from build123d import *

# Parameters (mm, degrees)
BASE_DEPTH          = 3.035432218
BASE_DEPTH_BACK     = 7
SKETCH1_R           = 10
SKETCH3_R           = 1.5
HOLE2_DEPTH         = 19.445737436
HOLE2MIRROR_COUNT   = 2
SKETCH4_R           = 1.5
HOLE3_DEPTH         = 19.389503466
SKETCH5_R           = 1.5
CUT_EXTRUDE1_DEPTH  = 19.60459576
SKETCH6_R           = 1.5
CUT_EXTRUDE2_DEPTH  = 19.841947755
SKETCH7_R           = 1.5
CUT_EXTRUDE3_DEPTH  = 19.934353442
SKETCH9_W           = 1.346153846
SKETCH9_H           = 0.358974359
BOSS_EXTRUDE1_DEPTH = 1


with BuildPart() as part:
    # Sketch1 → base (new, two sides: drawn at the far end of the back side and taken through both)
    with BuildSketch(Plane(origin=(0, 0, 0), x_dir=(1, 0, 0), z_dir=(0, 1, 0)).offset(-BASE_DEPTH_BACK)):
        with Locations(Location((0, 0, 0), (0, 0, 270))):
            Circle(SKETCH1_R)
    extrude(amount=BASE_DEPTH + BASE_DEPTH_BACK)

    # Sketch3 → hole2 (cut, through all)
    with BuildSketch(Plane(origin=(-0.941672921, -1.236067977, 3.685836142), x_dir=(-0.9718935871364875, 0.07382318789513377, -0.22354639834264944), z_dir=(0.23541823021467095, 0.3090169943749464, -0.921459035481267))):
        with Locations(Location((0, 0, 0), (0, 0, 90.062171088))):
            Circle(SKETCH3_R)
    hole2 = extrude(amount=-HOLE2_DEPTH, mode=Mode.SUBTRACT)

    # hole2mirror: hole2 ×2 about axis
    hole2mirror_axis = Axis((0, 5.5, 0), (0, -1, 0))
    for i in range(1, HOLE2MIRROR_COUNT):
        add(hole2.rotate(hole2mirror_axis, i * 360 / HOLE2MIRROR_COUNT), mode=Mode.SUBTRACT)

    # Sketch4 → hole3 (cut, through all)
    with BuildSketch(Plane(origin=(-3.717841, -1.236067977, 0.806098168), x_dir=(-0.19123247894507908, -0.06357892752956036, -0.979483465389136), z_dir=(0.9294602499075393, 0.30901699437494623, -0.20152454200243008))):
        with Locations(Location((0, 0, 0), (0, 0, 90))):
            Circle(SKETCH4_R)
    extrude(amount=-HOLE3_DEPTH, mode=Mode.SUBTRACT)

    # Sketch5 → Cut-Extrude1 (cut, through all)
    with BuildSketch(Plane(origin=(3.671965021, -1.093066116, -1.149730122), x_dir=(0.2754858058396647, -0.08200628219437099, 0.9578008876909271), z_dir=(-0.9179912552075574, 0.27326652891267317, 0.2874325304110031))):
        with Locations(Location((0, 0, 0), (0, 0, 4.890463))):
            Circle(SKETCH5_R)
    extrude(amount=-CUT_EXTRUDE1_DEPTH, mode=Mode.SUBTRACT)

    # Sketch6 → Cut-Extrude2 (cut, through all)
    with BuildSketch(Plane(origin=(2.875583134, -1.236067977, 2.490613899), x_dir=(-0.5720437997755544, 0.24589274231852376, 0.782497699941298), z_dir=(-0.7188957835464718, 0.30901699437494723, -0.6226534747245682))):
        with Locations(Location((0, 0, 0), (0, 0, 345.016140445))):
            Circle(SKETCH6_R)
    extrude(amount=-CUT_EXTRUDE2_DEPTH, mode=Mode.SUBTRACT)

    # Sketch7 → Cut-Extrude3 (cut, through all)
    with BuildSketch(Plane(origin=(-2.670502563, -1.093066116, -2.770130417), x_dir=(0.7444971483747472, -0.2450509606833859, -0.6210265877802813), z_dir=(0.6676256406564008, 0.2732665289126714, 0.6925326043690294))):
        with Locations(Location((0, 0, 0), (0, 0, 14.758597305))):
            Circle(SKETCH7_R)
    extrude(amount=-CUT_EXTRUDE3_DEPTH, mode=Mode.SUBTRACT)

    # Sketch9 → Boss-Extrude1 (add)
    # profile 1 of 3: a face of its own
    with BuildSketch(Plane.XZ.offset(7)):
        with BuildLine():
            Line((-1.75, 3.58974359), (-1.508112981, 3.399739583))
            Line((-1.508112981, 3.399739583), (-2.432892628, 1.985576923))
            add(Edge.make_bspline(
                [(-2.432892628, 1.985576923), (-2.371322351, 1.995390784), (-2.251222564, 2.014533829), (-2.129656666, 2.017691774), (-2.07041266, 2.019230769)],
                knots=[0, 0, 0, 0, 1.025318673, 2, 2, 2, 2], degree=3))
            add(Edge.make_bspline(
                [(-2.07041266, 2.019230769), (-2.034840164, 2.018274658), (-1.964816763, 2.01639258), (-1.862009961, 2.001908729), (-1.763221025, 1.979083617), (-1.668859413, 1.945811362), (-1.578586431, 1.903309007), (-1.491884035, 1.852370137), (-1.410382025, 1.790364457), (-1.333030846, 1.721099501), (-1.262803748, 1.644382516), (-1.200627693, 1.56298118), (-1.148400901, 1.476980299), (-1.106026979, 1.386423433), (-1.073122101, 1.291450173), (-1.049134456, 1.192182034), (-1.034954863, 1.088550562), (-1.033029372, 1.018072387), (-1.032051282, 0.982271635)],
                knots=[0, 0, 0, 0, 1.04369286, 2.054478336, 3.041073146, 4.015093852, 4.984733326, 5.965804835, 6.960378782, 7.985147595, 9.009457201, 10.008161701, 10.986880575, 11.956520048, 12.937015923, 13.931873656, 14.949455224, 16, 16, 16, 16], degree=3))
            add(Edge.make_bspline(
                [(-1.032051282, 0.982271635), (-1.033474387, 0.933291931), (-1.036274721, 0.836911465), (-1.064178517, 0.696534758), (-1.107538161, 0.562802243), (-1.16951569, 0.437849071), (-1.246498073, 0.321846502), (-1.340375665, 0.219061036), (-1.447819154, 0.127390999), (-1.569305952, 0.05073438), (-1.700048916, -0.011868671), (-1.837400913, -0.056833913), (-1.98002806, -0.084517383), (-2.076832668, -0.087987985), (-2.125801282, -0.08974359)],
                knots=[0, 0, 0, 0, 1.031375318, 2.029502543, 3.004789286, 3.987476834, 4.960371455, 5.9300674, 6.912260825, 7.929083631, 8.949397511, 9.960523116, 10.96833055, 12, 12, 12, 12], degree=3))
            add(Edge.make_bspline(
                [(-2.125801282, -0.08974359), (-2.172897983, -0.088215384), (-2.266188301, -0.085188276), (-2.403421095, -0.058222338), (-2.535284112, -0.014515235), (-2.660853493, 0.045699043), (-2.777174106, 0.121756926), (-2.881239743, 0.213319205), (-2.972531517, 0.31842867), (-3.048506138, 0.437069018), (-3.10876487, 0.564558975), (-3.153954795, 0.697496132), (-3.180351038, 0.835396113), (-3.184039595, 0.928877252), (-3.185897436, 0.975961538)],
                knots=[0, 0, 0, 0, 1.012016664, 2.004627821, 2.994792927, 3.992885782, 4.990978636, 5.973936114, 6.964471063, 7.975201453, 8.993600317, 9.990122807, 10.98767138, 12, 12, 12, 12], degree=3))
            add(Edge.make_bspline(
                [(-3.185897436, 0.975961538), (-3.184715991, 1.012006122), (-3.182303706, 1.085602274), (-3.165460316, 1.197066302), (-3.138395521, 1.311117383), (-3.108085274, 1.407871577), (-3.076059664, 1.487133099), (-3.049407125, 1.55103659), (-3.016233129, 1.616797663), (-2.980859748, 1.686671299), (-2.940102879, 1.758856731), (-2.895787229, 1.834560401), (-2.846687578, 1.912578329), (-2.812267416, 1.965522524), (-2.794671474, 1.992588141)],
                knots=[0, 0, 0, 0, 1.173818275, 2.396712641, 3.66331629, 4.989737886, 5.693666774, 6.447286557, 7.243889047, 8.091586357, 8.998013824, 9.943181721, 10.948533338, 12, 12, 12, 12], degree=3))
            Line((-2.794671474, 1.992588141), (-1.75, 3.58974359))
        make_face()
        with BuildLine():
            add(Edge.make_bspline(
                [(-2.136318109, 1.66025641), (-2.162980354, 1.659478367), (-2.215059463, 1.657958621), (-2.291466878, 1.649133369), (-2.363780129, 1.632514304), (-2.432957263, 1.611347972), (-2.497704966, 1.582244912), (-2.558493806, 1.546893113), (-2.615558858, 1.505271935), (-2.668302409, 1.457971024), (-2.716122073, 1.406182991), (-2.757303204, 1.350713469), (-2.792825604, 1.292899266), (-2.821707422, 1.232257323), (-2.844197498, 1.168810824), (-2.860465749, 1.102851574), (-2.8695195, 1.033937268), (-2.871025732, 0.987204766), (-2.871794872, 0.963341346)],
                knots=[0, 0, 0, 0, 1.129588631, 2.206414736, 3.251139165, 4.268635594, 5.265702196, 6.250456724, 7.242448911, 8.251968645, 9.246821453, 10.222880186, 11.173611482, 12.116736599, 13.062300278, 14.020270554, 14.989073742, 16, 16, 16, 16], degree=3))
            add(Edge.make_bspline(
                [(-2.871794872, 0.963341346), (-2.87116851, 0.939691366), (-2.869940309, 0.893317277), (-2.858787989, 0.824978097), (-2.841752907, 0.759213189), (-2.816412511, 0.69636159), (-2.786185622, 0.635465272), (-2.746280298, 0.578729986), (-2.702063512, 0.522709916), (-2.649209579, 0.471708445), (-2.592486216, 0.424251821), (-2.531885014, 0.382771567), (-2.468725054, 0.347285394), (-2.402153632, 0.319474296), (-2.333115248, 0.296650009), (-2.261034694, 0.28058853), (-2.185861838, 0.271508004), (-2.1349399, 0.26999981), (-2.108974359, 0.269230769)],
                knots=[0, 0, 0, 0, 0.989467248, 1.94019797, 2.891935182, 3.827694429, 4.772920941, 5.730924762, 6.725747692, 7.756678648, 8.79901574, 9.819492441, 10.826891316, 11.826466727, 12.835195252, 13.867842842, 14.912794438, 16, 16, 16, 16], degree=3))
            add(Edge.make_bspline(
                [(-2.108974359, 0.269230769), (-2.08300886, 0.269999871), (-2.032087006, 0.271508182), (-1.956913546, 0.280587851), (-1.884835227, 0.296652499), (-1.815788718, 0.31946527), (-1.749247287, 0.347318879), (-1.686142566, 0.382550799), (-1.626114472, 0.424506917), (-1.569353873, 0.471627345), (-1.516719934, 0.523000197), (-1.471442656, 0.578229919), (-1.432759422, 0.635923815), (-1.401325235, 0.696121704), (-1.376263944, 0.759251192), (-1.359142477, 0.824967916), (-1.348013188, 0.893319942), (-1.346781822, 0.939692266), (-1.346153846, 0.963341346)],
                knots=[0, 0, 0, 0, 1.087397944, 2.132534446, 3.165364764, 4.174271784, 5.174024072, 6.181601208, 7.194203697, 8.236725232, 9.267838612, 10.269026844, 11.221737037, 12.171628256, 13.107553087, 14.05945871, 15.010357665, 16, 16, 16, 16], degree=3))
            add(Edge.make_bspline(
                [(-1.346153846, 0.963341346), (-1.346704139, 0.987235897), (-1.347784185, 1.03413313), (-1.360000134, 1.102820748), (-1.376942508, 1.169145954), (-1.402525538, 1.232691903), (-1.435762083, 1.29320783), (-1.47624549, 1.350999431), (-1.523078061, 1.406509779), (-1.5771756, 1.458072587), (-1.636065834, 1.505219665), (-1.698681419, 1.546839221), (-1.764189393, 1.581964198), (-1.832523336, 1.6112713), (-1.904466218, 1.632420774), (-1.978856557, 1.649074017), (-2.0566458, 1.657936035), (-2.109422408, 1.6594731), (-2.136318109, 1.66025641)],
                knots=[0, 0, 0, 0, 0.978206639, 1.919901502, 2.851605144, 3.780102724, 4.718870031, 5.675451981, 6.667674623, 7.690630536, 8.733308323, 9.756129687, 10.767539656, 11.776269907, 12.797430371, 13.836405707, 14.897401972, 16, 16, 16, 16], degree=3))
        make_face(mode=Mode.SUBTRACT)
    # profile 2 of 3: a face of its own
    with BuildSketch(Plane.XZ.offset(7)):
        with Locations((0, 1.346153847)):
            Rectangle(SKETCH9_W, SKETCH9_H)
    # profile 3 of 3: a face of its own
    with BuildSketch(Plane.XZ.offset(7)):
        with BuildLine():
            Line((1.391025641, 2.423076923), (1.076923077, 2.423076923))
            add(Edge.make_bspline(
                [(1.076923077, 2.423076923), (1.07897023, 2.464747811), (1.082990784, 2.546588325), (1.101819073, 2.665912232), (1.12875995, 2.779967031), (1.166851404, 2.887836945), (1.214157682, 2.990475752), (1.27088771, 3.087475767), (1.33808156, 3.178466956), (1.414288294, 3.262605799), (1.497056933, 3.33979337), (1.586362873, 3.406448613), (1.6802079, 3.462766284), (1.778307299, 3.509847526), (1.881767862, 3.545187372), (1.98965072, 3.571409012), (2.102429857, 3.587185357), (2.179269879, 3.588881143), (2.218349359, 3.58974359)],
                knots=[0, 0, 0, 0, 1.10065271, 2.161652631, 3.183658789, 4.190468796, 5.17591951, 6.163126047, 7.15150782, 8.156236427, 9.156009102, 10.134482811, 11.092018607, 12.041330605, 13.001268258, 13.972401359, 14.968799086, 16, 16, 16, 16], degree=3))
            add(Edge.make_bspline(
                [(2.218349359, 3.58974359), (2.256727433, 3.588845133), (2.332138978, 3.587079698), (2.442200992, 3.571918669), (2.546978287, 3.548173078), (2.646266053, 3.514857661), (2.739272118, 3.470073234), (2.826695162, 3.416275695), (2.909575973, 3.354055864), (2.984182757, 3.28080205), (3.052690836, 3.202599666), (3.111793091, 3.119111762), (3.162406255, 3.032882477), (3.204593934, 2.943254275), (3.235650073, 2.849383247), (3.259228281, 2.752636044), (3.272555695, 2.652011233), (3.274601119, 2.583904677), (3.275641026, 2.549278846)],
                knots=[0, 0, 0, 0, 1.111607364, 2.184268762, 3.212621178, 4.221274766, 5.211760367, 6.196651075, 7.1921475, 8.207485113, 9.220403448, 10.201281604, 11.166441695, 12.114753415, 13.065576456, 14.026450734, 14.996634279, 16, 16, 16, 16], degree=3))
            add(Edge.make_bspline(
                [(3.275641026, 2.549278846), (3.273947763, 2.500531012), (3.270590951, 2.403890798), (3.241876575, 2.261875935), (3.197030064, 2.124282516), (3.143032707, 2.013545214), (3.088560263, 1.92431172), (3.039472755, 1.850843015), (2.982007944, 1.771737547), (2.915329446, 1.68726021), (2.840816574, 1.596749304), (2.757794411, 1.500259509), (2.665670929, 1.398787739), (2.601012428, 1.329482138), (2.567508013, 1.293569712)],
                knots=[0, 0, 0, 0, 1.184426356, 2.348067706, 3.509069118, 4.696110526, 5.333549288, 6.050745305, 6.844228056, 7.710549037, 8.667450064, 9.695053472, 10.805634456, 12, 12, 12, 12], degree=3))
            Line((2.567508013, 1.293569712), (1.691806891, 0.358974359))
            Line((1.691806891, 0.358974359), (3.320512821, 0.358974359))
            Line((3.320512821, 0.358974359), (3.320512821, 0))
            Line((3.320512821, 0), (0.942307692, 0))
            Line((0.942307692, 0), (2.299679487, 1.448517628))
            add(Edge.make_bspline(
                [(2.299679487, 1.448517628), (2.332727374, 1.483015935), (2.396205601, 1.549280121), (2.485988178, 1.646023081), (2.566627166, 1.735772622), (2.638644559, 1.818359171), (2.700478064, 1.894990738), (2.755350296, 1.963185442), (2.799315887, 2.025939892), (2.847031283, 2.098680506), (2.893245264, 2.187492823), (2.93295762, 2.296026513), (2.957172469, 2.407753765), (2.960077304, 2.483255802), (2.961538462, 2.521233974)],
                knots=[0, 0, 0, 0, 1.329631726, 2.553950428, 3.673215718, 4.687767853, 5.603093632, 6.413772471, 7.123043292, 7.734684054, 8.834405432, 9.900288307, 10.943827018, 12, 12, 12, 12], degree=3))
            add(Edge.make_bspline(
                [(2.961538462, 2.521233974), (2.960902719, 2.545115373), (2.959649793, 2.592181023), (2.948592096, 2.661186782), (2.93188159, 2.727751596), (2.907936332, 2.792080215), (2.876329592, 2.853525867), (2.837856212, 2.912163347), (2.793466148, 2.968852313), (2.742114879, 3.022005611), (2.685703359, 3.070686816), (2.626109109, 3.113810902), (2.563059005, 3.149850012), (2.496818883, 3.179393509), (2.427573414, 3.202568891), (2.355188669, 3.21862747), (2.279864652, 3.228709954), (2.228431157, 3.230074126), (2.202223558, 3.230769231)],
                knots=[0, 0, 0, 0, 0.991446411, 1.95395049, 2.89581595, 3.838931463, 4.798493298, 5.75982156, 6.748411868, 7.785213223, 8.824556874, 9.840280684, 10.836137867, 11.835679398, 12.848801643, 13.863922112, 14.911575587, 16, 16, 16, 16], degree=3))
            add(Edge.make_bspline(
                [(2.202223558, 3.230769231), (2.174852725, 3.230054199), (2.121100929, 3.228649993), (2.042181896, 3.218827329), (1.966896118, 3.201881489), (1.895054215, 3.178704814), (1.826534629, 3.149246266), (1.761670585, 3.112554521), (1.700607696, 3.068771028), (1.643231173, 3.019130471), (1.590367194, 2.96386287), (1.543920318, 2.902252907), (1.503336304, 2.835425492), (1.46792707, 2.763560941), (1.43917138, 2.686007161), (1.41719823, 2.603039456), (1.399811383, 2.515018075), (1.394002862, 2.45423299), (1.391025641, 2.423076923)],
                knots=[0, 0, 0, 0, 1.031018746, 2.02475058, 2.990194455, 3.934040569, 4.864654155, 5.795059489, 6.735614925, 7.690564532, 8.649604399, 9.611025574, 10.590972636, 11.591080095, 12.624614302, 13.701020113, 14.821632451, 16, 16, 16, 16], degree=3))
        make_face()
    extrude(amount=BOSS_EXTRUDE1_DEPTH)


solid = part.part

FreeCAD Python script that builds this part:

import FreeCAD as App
import Part
import Sketcher
from FreeCAD import Vector
Q = App.Units.Quantity

doc = App.newDocument("Part")
body = doc.addObject("PartDesign::Body", "Body")

# Sketch on XZ plane
sketch1 = body.newObject("Sketcher::SketchObject", "Sketch")
sketch1.AttachmentSupport = (doc.getObject("XZ_Plane"), [""])
sketch1.MapMode = "FlatFace"
sketch1.addGeometry(Part.Circle(Vector(0, 0, 0), Vector(0, 0, 1), 10), False)
sketch1.addConstraint([
    Sketcher.Constraint("Coincident", 0, 3, -1, 1),
    Sketcher.Constraint("Diameter", 0, Q("20 mm")),
])
pad1 = body.newObject("PartDesign::Pad", "Pad")
pad1.Profile = sketch1
pad1.Type = "TwoLengths"
pad1.Length = 3.035432
pad1.Length2 = 7
pad1.Reversed = True

# Sketch on an angled plane
sketch2 = body.newObject("Sketcher::SketchObject", "Sketch001")
sketch2.Placement = App.Placement(Vector(-0.941673, -1.236068, 3.685836), App.Rotation(Vector(-0.971893587, 0.073823188, -0.223546398), Vector(-0.001054592, 0.948187024, 0.317710959), Vector(0.23541823, 0.309016994, -0.921459035), "ZXY"))
sketch2.addGeometry(Part.Circle(Vector(0, 0, 0), Vector(0, 0, 1), 1.5), False)
sketch2.addConstraint([
    Sketcher.Constraint("Coincident", 0, 3, -1, 1),
    Sketcher.Constraint("Diameter", 0, Q("3 mm")),
])
pocket1 = body.newObject("PartDesign::Pocket", "Pocket")
pocket1.Profile = sketch2
pocket1.Type = "ThroughAll"
doc.recompute()

polarpattern = body.newObject("PartDesign::PolarPattern", "PolarPattern")
polarpattern.Originals = [pocket1]
polarpattern.Axis = (doc.getObject("Y_Axis"), [""])
polarpattern.Angle = 360
polarpattern.Occurrences = 2
body.Tip = polarpattern

# Sketch on an angled plane
sketch3 = body.newObject("Sketcher::SketchObject", "Sketch002")
sketch3.Placement = App.Placement(Vector(-3.717841, -1.236068, 0.806098), App.Rotation(Vector(-0.191232479, -0.063578928, -0.979483465), Vector(-0.31548975, 0.948928984, 0), Vector(0.92946025, 0.309016994, -0.201524542), "ZXY"))
sketch3.addGeometry(Part.Circle(Vector(0, 0, 0), Vector(0, 0, 1), 1.5), False)
sketch3.addConstraint([
    Sketcher.Constraint("Coincident", 0, 3, -1, 1),
    Sketcher.Constraint("Diameter", 0, Q("3 mm")),
])
pocket2 = body.newObject("PartDesign::Pocket", "Pocket001")
pocket2.Profile = sketch3
pocket2.Type = "ThroughAll"

# Sketch on an angled plane
sketch4 = body.newObject("Sketcher::SketchObject", "Sketch003")
sketch4.Placement = App.Placement(Vector(3.671965, -1.093066, -1.14973), App.Rotation(Vector(0.275485806, -0.082006282, 0.957800888), Vector(0.285306197, 0.958436421, 0), Vector(-0.917991255, 0.273266529, 0.28743253), "ZXY"))
sketch4.addGeometry(Part.Circle(Vector(0, 0, 0), Vector(0, 0, 1), 1.5), False)
sketch4.addConstraint([
    Sketcher.Constraint("Coincident", 0, 3, -1, 1),
    Sketcher.Constraint("Diameter", 0, Q("3 mm")),
])
pocket3 = body.newObject("PartDesign::Pocket", "Pocket002")
pocket3.Profile = sketch4
pocket3.Type = "ThroughAll"

# Sketch on an angled plane
sketch5 = body.newObject("Sketcher::SketchObject", "Sketch004")
sketch5.Placement = App.Placement(Vector(2.875583, -1.236068, 2.490614), App.Rotation(Vector(-0.5720438, 0.245892742, 0.7824977), Vector(0.394911057, 0.918719357, 0), Vector(-0.718895784, 0.309016994, -0.622653475), "ZXY"))
sketch5.addGeometry(Part.Circle(Vector(0, 0, 0), Vector(0, 0, 1), 1.5), False)
sketch5.addConstraint([
    Sketcher.Constraint("Coincident", 0, 3, -1, 1),
    Sketcher.Constraint("Diameter", 0, Q("3 mm")),
])
pocket4 = body.newObject("PartDesign::Pocket", "Pocket003")
pocket4.Profile = sketch5
pocket4.Type = "ThroughAll"

# Sketch on an angled plane
sketch6 = body.newObject("Sketcher::SketchObject", "Sketch005")
sketch6.Placement = App.Placement(Vector(-2.670503, -1.093066, -2.77013), App.Rotation(Vector(0.744497148, -0.245050961, -0.621026588), Vector(0, 0.930201822, -0.367048456), Vector(0.667625641, 0.273266529, 0.692532604), "ZXY"))
sketch6.addGeometry(Part.Circle(Vector(0, 0, 0), Vector(0, 0, 1), 1.5), False)
sketch6.addConstraint([
    Sketcher.Constraint("Coincident", 0, 3, -1, 1),
    Sketcher.Constraint("Diameter", 0, Q("3 mm")),
])
pocket5 = body.newObject("PartDesign::Pocket", "Pocket004")
pocket5.Profile = sketch6
pocket5.Type = "ThroughAll"

# Sketch on XZ plane
sketch7 = body.newObject("Sketcher::SketchObject", "Sketch006")
sketch7.AttachmentSupport = (doc.getObject("XZ_Plane"), [""])
sketch7.MapMode = "FlatFace"
sketch7.AttachmentOffset = App.Placement(Vector(0, 0, 7), App.Rotation())
sketch7.addGeometry([
    Part.LineSegment(Vector(-1.508113, 3.39974, 0), Vector(-1.75, 3.589744, 0)),  # 0
    Part.LineSegment(Vector(-1.75, 3.589744, 0), Vector(-2.794671, 1.992588, 0)),  # 1
    Part.BSplineCurve([Vector(-3.185897, 0.975962, 0), Vector(-3.184716, 1.012006, 0), Vector(-3.182304, 1.085602, 0), Vector(-3.16546, 1.197066, 0), Vector(-3.138396, 1.311117, 0), Vector(-3.108085, 1.407872, 0), Vector(-3.07606, 1.487133, 0), Vector(-3.049407, 1.551037, 0), Vector(-3.016233, 1.616798, 0), Vector(-2.98086, 1.686671, 0), Vector(-2.940103, 1.758857, 0), Vector(-2.895787, 1.83456, 0), Vector(-2.846688, 1.912578, 0), Vector(-2.812267, 1.965523, 0), Vector(-2.794671, 1.992588, 0)], [4, 1, 1, 1, 1, 1, 1, 1, 1, 1, 1, 1, 4], [0, 1.173818275, 2.396712641, 3.66331629, 4.989737886, 5.693666774, 6.447286557, 7.243889047, 8.091586357, 8.998013824, 9.943181721, 10.948533338, 12], False, 3, [1, 1, 1, 1, 1, 1, 1, 1, 1, 1, 1, 1, 1, 1, 1], False),  # 2
    Part.BSplineCurve([Vector(-2.125801, -0.089744, 0), Vector(-2.172898, -0.088215, 0), Vector(-2.266188, -0.085188, 0), Vector(-2.403421, -0.058222, 0), Vector(-2.535284, -0.014515, 0), Vector(-2.660853, 0.045699, 0), Vector(-2.777174, 0.121757, 0), Vector(-2.88124, 0.213319, 0), Vector(-2.972532, 0.318429, 0), Vector(-3.048506, 0.437069, 0), Vector(-3.108765, 0.564559, 0), Vector(-3.153955, 0.697496, 0), Vector(-3.180351, 0.835396, 0), Vector(-3.18404, 0.928877, 0), Vector(-3.185897, 0.975962, 0)], [4, 1, 1, 1, 1, 1, 1, 1, 1, 1, 1, 1, 4], [0, 1.012016664, 2.004627821, 2.994792927, 3.992885782, 4.990978636, 5.973936114, 6.964471063, 7.975201453, 8.993600317, 9.990122807, 10.98767138, 12], False, 3, [1, 1, 1, 1, 1, 1, 1, 1, 1, 1, 1, 1, 1, 1, 1], False),  # 3
    Part.BSplineCurve([Vector(-1.032051, 0.982272, 0), Vector(-1.033474, 0.933292, 0), Vector(-1.036275, 0.836911, 0), Vector(-1.064179, 0.696535, 0), Vector(-1.107538, 0.562802, 0), Vector(-1.169516, 0.437849, 0), Vector(-1.246498, 0.321847, 0), Vector(-1.340376, 0.219061, 0), Vector(-1.447819, 0.127391, 0), Vector(-1.569306, 0.050734, 0), Vector(-1.700049, -0.011869, 0), Vector(-1.837401, -0.056834, 0), Vector(-1.980028, -0.084517, 0), Vector(-2.076833, -0.087988, 0), Vector(-2.125801, -0.089744, 0)], [4, 1, 1, 1, 1, 1, 1, 1, 1, 1, 1, 1, 4], [0, 1.031375318, 2.029502543, 3.004789286, 3.987476834, 4.960371455, 5.9300674, 6.912260825, 7.929083631, 8.949397511, 9.960523116, 10.96833055, 12], False, 3, [1, 1, 1, 1, 1, 1, 1, 1, 1, 1, 1, 1, 1, 1, 1], False),  # 4
    Part.BSplineCurve([Vector(-2.070413, 2.019231, 0), Vector(-2.03484, 2.018275, 0), Vector(-1.964817, 2.016393, 0), Vector(-1.86201, 2.001909, 0), Vector(-1.763221, 1.979084, 0), Vector(-1.668859, 1.945811, 0), Vector(-1.578586, 1.903309, 0), Vector(-1.491884, 1.85237, 0), Vector(-1.410382, 1.790364, 0), Vector(-1.333031, 1.7211, 0), Vector(-1.262804, 1.644383, 0), Vector(-1.200628, 1.562981, 0), Vector(-1.148401, 1.47698, 0), Vector(-1.106027, 1.386423, 0), Vector(-1.073122, 1.29145, 0), Vector(-1.049134, 1.192182, 0), Vector(-1.034955, 1.088551, 0), Vector(-1.033029, 1.018072, 0), Vector(-1.032051, 0.982272, 0)], [4, 1, 1, 1, 1, 1, 1, 1, 1, 1, 1, 1, 1, 1, 1, 1, 4], [0, 1.04369286, 2.054478336, 3.041073146, 4.015093852, 4.984733326, 5.965804835, 6.960378782, 7.985147595, 9.009457201, 10.008161701, 10.986880575, 11.956520048, 12.937015923, 13.931873656, 14.949455224, 16], False, 3, [1, 1, 1, 1, 1, 1, 1, 1, 1, 1, 1, 1, 1, 1, 1, 1, 1, 1, 1], False),  # 5
    Part.BSplineCurve([Vector(-2.432893, 1.985577, 0), Vector(-2.371322, 1.995391, 0), Vector(-2.251223, 2.014534, 0), Vector(-2.129657, 2.017692, 0), Vector(-2.070413, 2.019231, 0)], [4, 1, 4], [0, 1.025318673, 2], False, 3, [1, 1, 1, 1, 1], False),  # 6
    Part.LineSegment(Vector(-2.432893, 1.985577, 0), Vector(-1.508113, 3.39974, 0)),  # 7
    Part.BSplineCurve([Vector(-1.346154, 0.963341, 0), Vector(-1.346704, 0.987236, 0), Vector(-1.347784, 1.034133, 0), Vector(-1.36, 1.102821, 0), Vector(-1.376943, 1.169146, 0), Vector(-1.402526, 1.232692, 0), Vector(-1.435762, 1.293208, 0), Vector(-1.476245, 1.350999, 0), Vector(-1.523078, 1.40651, 0), Vector(-1.577176, 1.458073, 0), Vector(-1.636066, 1.50522, 0), Vector(-1.698681, 1.546839, 0), Vector(-1.764189, 1.581964, 0), Vector(-1.832523, 1.611271, 0), Vector(-1.904466, 1.632421, 0), Vector(-1.978857, 1.649074, 0), Vector(-2.056646, 1.657936, 0), Vector(-2.109422, 1.659473, 0), Vector(-2.136318, 1.660256, 0)], [4, 1, 1, 1, 1, 1, 1, 1, 1, 1, 1, 1, 1, 1, 1, 1, 4], [0, 0.978206639, 1.919901502, 2.851605144, 3.780102724, 4.718870031, 5.675451981, 6.667674623, 7.690630536, 8.733308323, 9.756129687, 10.767539656, 11.776269907, 12.797430371, 13.836405707, 14.897401972, 16], False, 3, [1, 1, 1, 1, 1, 1, 1, 1, 1, 1, 1, 1, 1, 1, 1, 1, 1, 1, 1], False),  # 8
    Part.BSplineCurve([Vector(-2.108974, 0.269231, 0), Vector(-2.083009, 0.27, 0), Vector(-2.032087, 0.271508, 0), Vector(-1.956914, 0.280588, 0), Vector(-1.884835, 0.296652, 0), Vector(-1.815789, 0.319465, 0), Vector(-1.749247, 0.347319, 0), Vector(-1.686143, 0.382551, 0), Vector(-1.626114, 0.424507, 0), Vector(-1.569354, 0.471627, 0), Vector(-1.51672, 0.523, 0), Vector(-1.471443, 0.57823, 0), Vector(-1.432759, 0.635924, 0), Vector(-1.401325, 0.696122, 0), Vector(-1.376264, 0.759251, 0), Vector(-1.359142, 0.824968, 0), Vector(-1.348013, 0.89332, 0), Vector(-1.346782, 0.939692, 0), Vector(-1.346154, 0.963341, 0)], [4, 1, 1, 1, 1, 1, 1, 1, 1, 1, 1, 1, 1, 1, 1, 1, 4], [0, 1.087397944, 2.132534446, 3.165364764, 4.174271784, 5.174024072, 6.181601208, 7.194203697, 8.236725232, 9.267838612, 10.269026844, 11.221737037, 12.171628256, 13.107553087, 14.05945871, 15.010357665, 16], False, 3, [1, 1, 1, 1, 1, 1, 1, 1, 1, 1, 1, 1, 1, 1, 1, 1, 1, 1, 1], False),  # 9
    Part.BSplineCurve([Vector(-2.871795, 0.963341, 0), Vector(-2.871169, 0.939691, 0), Vector(-2.86994, 0.893317, 0), Vector(-2.858788, 0.824978, 0), Vector(-2.841753, 0.759213, 0), Vector(-2.816413, 0.696362, 0), Vector(-2.786186, 0.635465, 0), Vector(-2.74628, 0.57873, 0), Vector(-2.702064, 0.52271, 0), Vector(-2.64921, 0.471708, 0), Vector(-2.592486, 0.424252, 0), Vector(-2.531885, 0.382772, 0), Vector(-2.468725, 0.347285, 0), Vector(-2.402154, 0.319474, 0), Vector(-2.333115, 0.29665, 0), Vector(-2.261035, 0.280589, 0), Vector(-2.185862, 0.271508, 0), Vector(-2.13494, 0.27, 0), Vector(-2.108974, 0.269231, 0)], [4, 1, 1, 1, 1, 1, 1, 1, 1, 1, 1, 1, 1, 1, 1, 1, 4], [0, 0.989467248, 1.94019797, 2.891935182, 3.827694429, 4.772920941, 5.730924762, 6.725747692, 7.756678648, 8.79901574, 9.819492441, 10.826891316, 11.826466727, 12.835195252, 13.867842842, 14.912794438, 16], False, 3, [1, 1, 1, 1, 1, 1, 1, 1, 1, 1, 1, 1, 1, 1, 1, 1, 1, 1, 1], False),  # 10
    Part.BSplineCurve([Vector(-2.136318, 1.660256, 0), Vector(-2.16298, 1.659478, 0), Vector(-2.215059, 1.657959, 0), Vector(-2.291467, 1.649133, 0), Vector(-2.36378, 1.632514, 0), Vector(-2.432957, 1.611348, 0), Vector(-2.497705, 1.582245, 0), Vector(-2.558494, 1.546893, 0), Vector(-2.615559, 1.505272, 0), Vector(-2.668302, 1.457971, 0), Vector(-2.716122, 1.406183, 0), Vector(-2.757303, 1.350713, 0), Vector(-2.792826, 1.292899, 0), Vector(-2.821707, 1.232257, 0), Vector(-2.844197, 1.168811, 0), Vector(-2.860466, 1.102852, 0), Vector(-2.86952, 1.033937, 0), Vector(-2.871026, 0.987205, 0), Vector(-2.871795, 0.963341, 0)], [4, 1, 1, 1, 1, 1, 1, 1, 1, 1, 1, 1, 1, 1, 1, 1, 4], [0, 1.129588631, 2.206414736, 3.251139165, 4.268635594, 5.265702196, 6.250456724, 7.242448911, 8.251968645, 9.246821453, 10.222880186, 11.173611482, 12.116736599, 13.062300278, 14.020270554, 14.989073742, 16], False, 3, [1, 1, 1, 1, 1, 1, 1, 1, 1, 1, 1, 1, 1, 1, 1, 1, 1, 1, 1], False),  # 11
    Part.LineSegment(Vector(-0.673077, 1.525641, 0), Vector(-0.673077, 1.166667, 0)),  # 12
    Part.LineSegment(Vector(-0.673077, 1.166667, 0), Vector(0.673077, 1.166667, 0)),  # 13
    Part.LineSegment(Vector(0.673077, 1.166667, 0), Vector(0.673077, 1.525641, 0)),  # 14
    Part.LineSegment(Vector(0.673077, 1.525641, 0), Vector(-0.673077, 1.525641, 0)),  # 15
    Part.LineSegment(Vector(1.076923, 2.423077, 0), Vector(1.391026, 2.423077, 0)),  # 16
    Part.BSplineCurve([Vector(2.202224, 3.230769, 0), Vector(2.174853, 3.230054, 0), Vector(2.121101, 3.22865, 0), Vector(2.042182, 3.218827, 0), Vector(1.966896, 3.201881, 0), Vector(1.895054, 3.178705, 0), Vector(1.826535, 3.149246, 0), Vector(1.761671, 3.112555, 0), Vector(1.700608, 3.068771, 0), Vector(1.643231, 3.01913, 0), Vector(1.590367, 2.963863, 0), Vector(1.54392, 2.902253, 0), Vector(1.503336, 2.835425, 0), Vector(1.467927, 2.763561, 0), Vector(1.439171, 2.686007, 0), Vector(1.417198, 2.603039, 0), Vector(1.399811, 2.515018, 0), Vector(1.394003, 2.454233, 0), Vector(1.391026, 2.423077, 0)], [4, 1, 1, 1, 1, 1, 1, 1, 1, 1, 1, 1, 1, 1, 1, 1, 4], [0, 1.031018746, 2.02475058, 2.990194455, 3.934040569, 4.864654155, 5.795059489, 6.735614925, 7.690564532, 8.649604399, 9.611025574, 10.590972636, 11.591080095, 12.624614302, 13.701020113, 14.821632451, 16], False, 3, [1, 1, 1, 1, 1, 1, 1, 1, 1, 1, 1, 1, 1, 1, 1, 1, 1, 1, 1], False),  # 17
    Part.BSplineCurve([Vector(2.961538, 2.521234, 0), Vector(2.960903, 2.545115, 0), Vector(2.95965, 2.592181, 0), Vector(2.948592, 2.661187, 0), Vector(2.931882, 2.727752, 0), Vector(2.907936, 2.79208, 0), Vector(2.87633, 2.853526, 0), Vector(2.837856, 2.912163, 0), Vector(2.793466, 2.968852, 0), Vector(2.742115, 3.022006, 0), Vector(2.685703, 3.070687, 0), Vector(2.626109, 3.113811, 0), Vector(2.563059, 3.14985, 0), Vector(2.496819, 3.179394, 0), Vector(2.427573, 3.202569, 0), Vector(2.355189, 3.218627, 0), Vector(2.279865, 3.22871, 0), Vector(2.228431, 3.230074, 0), Vector(2.202224, 3.230769, 0)], [4, 1, 1, 1, 1, 1, 1, 1, 1, 1, 1, 1, 1, 1, 1, 1, 4], [0, 0.991446411, 1.95395049, 2.89581595, 3.838931463, 4.798493298, 5.75982156, 6.748411868, 7.785213223, 8.824556874, 9.840280684, 10.836137867, 11.835679398, 12.848801643, 13.863922112, 14.911575587, 16], False, 3, [1, 1, 1, 1, 1, 1, 1, 1, 1, 1, 1, 1, 1, 1, 1, 1, 1, 1, 1], False),  # 18
    Part.BSplineCurve([Vector(2.299679, 1.448518, 0), Vector(2.332727, 1.483016, 0), Vector(2.396206, 1.54928, 0), Vector(2.485988, 1.646023, 0), Vector(2.566627, 1.735773, 0), Vector(2.638645, 1.818359, 0), Vector(2.700478, 1.894991, 0), Vector(2.75535, 1.963185, 0), Vector(2.799316, 2.02594, 0), Vector(2.847031, 2.098681, 0), Vector(2.893245, 2.187493, 0), Vector(2.932958, 2.296027, 0), Vector(2.957172, 2.407754, 0), Vector(2.960077, 2.483256, 0), Vector(2.961538, 2.521234, 0)], [4, 1, 1, 1, 1, 1, 1, 1, 1, 1, 1, 1, 4], [0, 1.329631726, 2.553950428, 3.673215718, 4.687767853, 5.603093632, 6.413772471, 7.123043292, 7.734684054, 8.834405432, 9.900288307, 10.943827018, 12], False, 3, [1, 1, 1, 1, 1, 1, 1, 1, 1, 1, 1, 1, 1, 1, 1], False),  # 19
    Part.LineSegment(Vector(2.299679, 1.448518, 0), Vector(0.942308, 0, 0)),  # 20
    Part.LineSegment(Vector(0.942308, 0, 0), Vector(3.320513, 0, 0)),  # 21
    Part.LineSegment(Vector(3.320513, 0, 0), Vector(3.320513, 0.358974, 0)),  # 22
    Part.LineSegment(Vector(3.320513, 0.358974, 0), Vector(1.691807, 0.358974, 0)),  # 23
    Part.LineSegment(Vector(1.691807, 0.358974, 0), Vector(2.567508, 1.29357, 0)),  # 24
    Part.BSplineCurve([Vector(3.275641, 2.549279, 0), Vector(3.273948, 2.500531, 0), Vector(3.270591, 2.403891, 0), Vector(3.241877, 2.261876, 0), Vector(3.19703, 2.124283, 0), Vector(3.143033, 2.013545, 0), Vector(3.08856, 1.924312, 0), Vector(3.039473, 1.850843, 0), Vector(2.982008, 1.771738, 0), Vector(2.915329, 1.68726, 0), Vector(2.840817, 1.596749, 0), Vector(2.757794, 1.50026, 0), Vector(2.665671, 1.398788, 0), Vector(2.601012, 1.329482, 0), Vector(2.567508, 1.29357, 0)], [4, 1, 1, 1, 1, 1, 1, 1, 1, 1, 1, 1, 4], [0, 1.184426356, 2.348067706, 3.509069118, 4.696110526, 5.333549288, 6.050745305, 6.844228056, 7.710549037, 8.667450064, 9.695053472, 10.805634456, 12], False, 3, [1, 1, 1, 1, 1, 1, 1, 1, 1, 1, 1, 1, 1, 1, 1], False),  # 25
    Part.BSplineCurve([Vector(2.218349, 3.589744, 0), Vector(2.256727, 3.588845, 0), Vector(2.332139, 3.58708, 0), Vector(2.442201, 3.571919, 0), Vector(2.546978, 3.548173, 0), Vector(2.646266, 3.514858, 0), Vector(2.739272, 3.470073, 0), Vector(2.826695, 3.416276, 0), Vector(2.909576, 3.354056, 0), Vector(2.984183, 3.280802, 0), Vector(3.052691, 3.2026, 0), Vector(3.111793, 3.119112, 0), Vector(3.162406, 3.032882, 0), Vector(3.204594, 2.943254, 0), Vector(3.23565, 2.849383, 0), Vector(3.259228, 2.752636, 0), Vector(3.272556, 2.652011, 0), Vector(3.274601, 2.583905, 0), Vector(3.275641, 2.549279, 0)], [4, 1, 1, 1, 1, 1, 1, 1, 1, 1, 1, 1, 1, 1, 1, 1, 4], [0, 1.111607364, 2.184268762, 3.212621178, 4.221274766, 5.211760367, 6.196651075, 7.1921475, 8.207485113, 9.220403448, 10.201281604, 11.166441695, 12.114753415, 13.065576456, 14.026450734, 14.996634279, 16], False, 3, [1, 1, 1, 1, 1, 1, 1, 1, 1, 1, 1, 1, 1, 1, 1, 1, 1, 1, 1], False),  # 26
    Part.BSplineCurve([Vector(1.076923, 2.423077, 0), Vector(1.07897, 2.464748, 0), Vector(1.082991, 2.546588, 0), Vector(1.101819, 2.665912, 0), Vector(1.12876, 2.779967, 0), Vector(1.166851, 2.887837, 0), Vector(1.214158, 2.990476, 0), Vector(1.270888, 3.087476, 0), Vector(1.338082, 3.178467, 0), Vector(1.414288, 3.262606, 0), Vector(1.497057, 3.339793, 0), Vector(1.586363, 3.406449, 0), Vector(1.680208, 3.462766, 0), Vector(1.778307, 3.509848, 0), Vector(1.881768, 3.545187, 0), Vector(1.989651, 3.571409, 0), Vector(2.10243, 3.587185, 0), Vector(2.17927, 3.588881, 0), Vector(2.218349, 3.589744, 0)], [4, 1, 1, 1, 1, 1, 1, 1, 1, 1, 1, 1, 1, 1, 1, 1, 4], [0, 1.10065271, 2.161652631, 3.183658789, 4.190468796, 5.17591951, 6.163126047, 7.15150782, 8.156236427, 9.156009102, 10.134482811, 11.092018607, 12.041330605, 13.001268258, 13.972401359, 14.968799086, 16], False, 3, [1, 1, 1, 1, 1, 1, 1, 1, 1, 1, 1, 1, 1, 1, 1, 1, 1, 1, 1], False),  # 27
], False)
sketch7.addConstraint([
    Sketcher.Constraint("Block", 2),
    Sketcher.Constraint("Block", 3),
    Sketcher.Constraint("Block", 4),
    Sketcher.Constraint("Block", 5),
    Sketcher.Constraint("Block", 6),
    Sketcher.Constraint("Block", 8),
    Sketcher.Constraint("Block", 9),
    Sketcher.Constraint("Block", 10),
    Sketcher.Constraint("Block", 11),
    Sketcher.Constraint("Block", 17),
    Sketcher.Constraint("Block", 18),
    Sketcher.Constraint("Block", 19),
    Sketcher.Constraint("Block", 25),
    Sketcher.Constraint("Block", 26),
    Sketcher.Constraint("Block", 27),
    Sketcher.Constraint("Coincident", 0, 2, 1, 1),
    Sketcher.Constraint("Coincident", 1, 2, 2, 2),
    Sketcher.Constraint("Coincident", 6, 1, 7, 1),
    Sketcher.Constraint("Coincident", 7, 2, 0, 1),
    Sketcher.Constraint("Coincident", 12, 2, 13, 1),
    Sketcher.Constraint("Coincident", 13, 2, 14, 1),
    Sketcher.Constraint("Coincident", 14, 2, 15, 1),
    Sketcher.Constraint("Coincident", 15, 2, 12, 1),
    Sketcher.Constraint("Coincident", 16, 2, 17, 2),
    Sketcher.Constraint("Coincident", 19, 1, 20, 1),
    Sketcher.Constraint("Coincident", 20, 2, 21, 1),
    Sketcher.Constraint("Coincident", 21, 2, 22, 1),
    Sketcher.Constraint("Coincident", 22, 2, 23, 1),
    Sketcher.Constraint("Coincident", 23, 2, 24, 1),
    Sketcher.Constraint("Coincident", 24, 2, 25, 2),
    Sketcher.Constraint("Coincident", 27, 1, 16, 1),
    Sketcher.Constraint("Vertical", 12),
    Sketcher.Constraint("Horizontal", 13),
    Sketcher.Constraint("Vertical", 14),
    Sketcher.Constraint("Horizontal", 15),
    Sketcher.Constraint("Horizontal", 21),
    Sketcher.Constraint("Vertical", 22),
    Sketcher.Constraint("Horizontal", 23),
    Sketcher.Constraint("PointOnObject", 20, 2, -1),
    Sketcher.Constraint("Equal", 14, 22),
    Sketcher.Constraint("DistanceX", 0, 2, -1, 1, Q("1.75 mm")),
    Sketcher.Constraint("DistanceY", 14, 2, 7, 2, Q("1.874099 mm")),
    Sketcher.Constraint("DistanceX", 20, 2, 23, 2, Q("0.749499 mm")),
    Sketcher.Constraint("DistanceX", 23, 2, 24, 2, Q("0.875701 mm")),
    Sketcher.Constraint("Distance", 0, Q("0.307589 mm")),
    Sketcher.Constraint("Distance", 24, Q("1.28075 mm")),
    Sketcher.Constraint("DistanceX", 13, 1, 13, 2, Q("1.346154 mm")),
    Sketcher.Constraint("DistanceX", 21, 1, 21, 2, Q("2.378205 mm")),
    Sketcher.Constraint("DistanceY", -1, 1, 7, 2, Q("3.39974 mm")),
    Sketcher.Constraint("DistanceX", 1, 2, 7, 2, Q("1.286558 mm")),
    Sketcher.Constraint("DistanceX", 7, 2, 13, 2, Q("2.18119 mm")),
])
pad2 = body.newObject("PartDesign::Pad", "Pad001")
pad2.Profile = sketch7
pad2.Length = 1

doc.recompute()
